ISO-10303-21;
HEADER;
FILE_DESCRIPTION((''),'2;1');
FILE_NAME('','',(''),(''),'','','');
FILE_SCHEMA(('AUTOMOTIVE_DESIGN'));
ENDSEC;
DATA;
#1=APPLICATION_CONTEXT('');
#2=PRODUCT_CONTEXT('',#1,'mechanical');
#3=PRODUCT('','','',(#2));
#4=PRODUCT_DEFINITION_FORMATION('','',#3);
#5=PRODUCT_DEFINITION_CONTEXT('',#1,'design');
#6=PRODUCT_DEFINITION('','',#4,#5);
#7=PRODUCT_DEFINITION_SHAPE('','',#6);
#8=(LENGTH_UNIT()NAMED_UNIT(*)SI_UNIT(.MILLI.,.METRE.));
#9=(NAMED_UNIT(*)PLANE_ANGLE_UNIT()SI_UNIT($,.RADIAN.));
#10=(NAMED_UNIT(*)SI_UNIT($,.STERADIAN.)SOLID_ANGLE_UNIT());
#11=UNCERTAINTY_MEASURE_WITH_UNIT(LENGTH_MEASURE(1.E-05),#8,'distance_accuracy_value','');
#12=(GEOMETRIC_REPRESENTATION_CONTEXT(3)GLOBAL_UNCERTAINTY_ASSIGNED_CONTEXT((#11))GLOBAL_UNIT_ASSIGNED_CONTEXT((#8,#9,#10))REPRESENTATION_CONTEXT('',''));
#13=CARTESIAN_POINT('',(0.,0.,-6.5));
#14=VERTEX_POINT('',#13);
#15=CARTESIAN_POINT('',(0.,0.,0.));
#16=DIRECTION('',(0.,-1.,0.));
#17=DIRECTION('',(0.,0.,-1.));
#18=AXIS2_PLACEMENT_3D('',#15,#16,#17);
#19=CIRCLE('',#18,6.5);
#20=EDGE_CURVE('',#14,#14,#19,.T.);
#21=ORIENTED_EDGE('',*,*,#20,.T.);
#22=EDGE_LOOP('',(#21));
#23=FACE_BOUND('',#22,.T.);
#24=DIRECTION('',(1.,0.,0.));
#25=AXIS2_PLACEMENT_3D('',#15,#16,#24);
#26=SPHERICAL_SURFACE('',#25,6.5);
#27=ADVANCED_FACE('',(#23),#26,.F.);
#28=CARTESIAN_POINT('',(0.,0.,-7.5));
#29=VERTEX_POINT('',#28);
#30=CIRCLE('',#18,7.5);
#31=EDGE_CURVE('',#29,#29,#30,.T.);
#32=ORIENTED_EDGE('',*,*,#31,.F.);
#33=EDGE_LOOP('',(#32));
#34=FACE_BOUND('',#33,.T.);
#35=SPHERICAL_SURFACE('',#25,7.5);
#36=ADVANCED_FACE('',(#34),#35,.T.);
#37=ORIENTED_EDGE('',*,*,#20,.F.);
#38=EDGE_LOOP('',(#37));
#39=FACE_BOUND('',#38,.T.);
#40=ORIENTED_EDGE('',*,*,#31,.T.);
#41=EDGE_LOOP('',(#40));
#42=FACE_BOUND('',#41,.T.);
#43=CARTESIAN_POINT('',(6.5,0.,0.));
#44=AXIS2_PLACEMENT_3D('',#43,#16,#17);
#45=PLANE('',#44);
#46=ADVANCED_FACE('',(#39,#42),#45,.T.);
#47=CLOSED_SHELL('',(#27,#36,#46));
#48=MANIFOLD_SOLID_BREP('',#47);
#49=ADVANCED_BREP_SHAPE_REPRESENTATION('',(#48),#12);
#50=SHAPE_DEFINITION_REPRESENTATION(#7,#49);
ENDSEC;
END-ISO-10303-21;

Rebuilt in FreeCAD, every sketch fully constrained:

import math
import FreeCAD as App
import Part
import Sketcher
from FreeCAD import Vector

doc = App.newDocument("Part")
params = doc.addObject("Spreadsheet::Sheet", "Params")
for row, (alias, value) in enumerate([
    ("sketch1_radius", "6.5 mm"),
    ("sketch1_radius2", "7.5 mm"),
    ("revolution_angle", "360 deg"),
], start=1):
    params.set(f"A{row}", alias)
    params.set(f"B{row}", "=" + value)
    params.setAlias(f"B{row}", alias)

body = doc.addObject("PartDesign::Body", "Body")

# Sketch on XY plane
sketch1 = body.newObject("Sketcher::SketchObject", "Sketch")
sketch1.AttachmentSupport = (doc.getObject("XY_Plane"), [""])
sketch1.MapMode = "FlatFace"
sketch1.addGeometry(Part.LineSegment(Vector(0, 7.5, 0), Vector(0, 6.5, 0)), False)
sketch1.addGeometry(Part.ArcOfCircle(Part.Circle(Vector(0, 0, 0), Vector(0, 0, 1), 6.5), math.radians(0), math.radians(90)), False)
sketch1.addGeometry(Part.LineSegment(Vector(6.5, 0, 0), Vector(7.5, 0, 0)), False)
sketch1.addGeometry(Part.ArcOfCircle(Part.Circle(Vector(0, 0, 0), Vector(0, 0, 1), 7.5), math.radians(0), math.radians(90)), False)
sketch1.addConstraint(Sketcher.Constraint("Coincident", 0, 2, 1, 2))
sketch1.addConstraint(Sketcher.Constraint("Coincident", 1, 1, 2, 1))
sketch1.addConstraint(Sketcher.Constraint("Coincident", 2, 2, 3, 1))
sketch1.addConstraint(Sketcher.Constraint("Coincident", 3, 2, 0, 1))
sketch1.addConstraint(Sketcher.Constraint("Vertical", 0))
sketch1.addConstraint(Sketcher.Constraint("Horizontal", 2))
sketch1.addConstraint(Sketcher.Constraint("Coincident", 1, 3, -1, 1))
sketch1.addConstraint(Sketcher.Constraint("Coincident", 3, 3, -1, 1))
sketch1.addConstraint(Sketcher.Constraint("PointOnObject", 0, 2, -2))
sketch1.addConstraint(Sketcher.Constraint("PointOnObject", 1, 1, -1))
sketch1.addConstraint(Sketcher.Constraint("Radius", 1, 6.5))
sketch1.addConstraint(Sketcher.Constraint("Radius", 3, 7.5))
sketch1.setExpression("Constraints[10]", "Params.sketch1_radius")
sketch1.setExpression("Constraints[11]", "Params.sketch1_radius2")
revolution = body.newObject("PartDesign::Revolution", "Revolution")
revolution.Profile = sketch1
revolution.ReferenceAxis = (sketch1, ["V_Axis"])
revolution.setExpression("Angle", "Params.revolution_angle")

doc.recompute()
